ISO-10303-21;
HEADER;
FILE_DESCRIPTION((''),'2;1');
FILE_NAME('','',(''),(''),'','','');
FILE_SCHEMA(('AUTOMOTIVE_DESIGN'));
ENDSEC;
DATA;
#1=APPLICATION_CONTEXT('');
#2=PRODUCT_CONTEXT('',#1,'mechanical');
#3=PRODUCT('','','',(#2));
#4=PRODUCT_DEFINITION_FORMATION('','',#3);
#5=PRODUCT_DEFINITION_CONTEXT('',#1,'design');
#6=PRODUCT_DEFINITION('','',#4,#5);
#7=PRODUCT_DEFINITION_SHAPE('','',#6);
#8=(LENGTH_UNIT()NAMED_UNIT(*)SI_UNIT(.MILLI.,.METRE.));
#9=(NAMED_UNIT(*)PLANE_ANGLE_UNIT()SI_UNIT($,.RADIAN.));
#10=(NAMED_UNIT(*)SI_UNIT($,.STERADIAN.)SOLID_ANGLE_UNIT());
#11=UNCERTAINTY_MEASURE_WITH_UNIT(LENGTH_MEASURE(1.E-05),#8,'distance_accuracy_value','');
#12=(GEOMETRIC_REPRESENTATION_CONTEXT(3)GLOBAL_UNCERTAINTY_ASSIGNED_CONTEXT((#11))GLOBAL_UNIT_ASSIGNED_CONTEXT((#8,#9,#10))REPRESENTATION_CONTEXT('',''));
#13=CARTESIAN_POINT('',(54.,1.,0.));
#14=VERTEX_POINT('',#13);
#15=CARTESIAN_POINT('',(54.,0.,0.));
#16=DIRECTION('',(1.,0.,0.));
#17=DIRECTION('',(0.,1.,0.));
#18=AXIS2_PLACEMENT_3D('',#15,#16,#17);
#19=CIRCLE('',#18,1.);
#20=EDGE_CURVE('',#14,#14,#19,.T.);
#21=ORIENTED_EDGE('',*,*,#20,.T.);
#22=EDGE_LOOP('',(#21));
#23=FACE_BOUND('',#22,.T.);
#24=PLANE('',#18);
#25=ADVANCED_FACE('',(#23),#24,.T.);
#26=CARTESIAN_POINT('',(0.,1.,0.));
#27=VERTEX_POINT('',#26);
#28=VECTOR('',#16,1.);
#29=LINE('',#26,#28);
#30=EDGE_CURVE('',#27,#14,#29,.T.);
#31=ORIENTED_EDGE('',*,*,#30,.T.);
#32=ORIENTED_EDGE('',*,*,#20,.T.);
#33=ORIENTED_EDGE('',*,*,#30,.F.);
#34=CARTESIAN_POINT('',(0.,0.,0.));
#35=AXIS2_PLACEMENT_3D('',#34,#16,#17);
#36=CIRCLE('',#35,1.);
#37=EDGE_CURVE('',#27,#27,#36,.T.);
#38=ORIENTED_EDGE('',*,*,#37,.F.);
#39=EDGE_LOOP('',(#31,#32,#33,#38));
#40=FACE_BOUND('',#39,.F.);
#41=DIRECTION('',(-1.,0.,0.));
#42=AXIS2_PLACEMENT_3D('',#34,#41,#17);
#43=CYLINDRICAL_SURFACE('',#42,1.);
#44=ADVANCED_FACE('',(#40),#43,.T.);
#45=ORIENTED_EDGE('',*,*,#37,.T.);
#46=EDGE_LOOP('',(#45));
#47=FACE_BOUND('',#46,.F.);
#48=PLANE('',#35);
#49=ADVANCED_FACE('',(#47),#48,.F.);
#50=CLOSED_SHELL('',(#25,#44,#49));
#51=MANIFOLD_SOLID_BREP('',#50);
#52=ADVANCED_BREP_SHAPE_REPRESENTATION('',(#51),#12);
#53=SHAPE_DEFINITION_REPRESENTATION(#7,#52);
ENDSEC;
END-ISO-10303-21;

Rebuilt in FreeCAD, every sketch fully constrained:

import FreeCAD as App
import Part
import Sketcher
from FreeCAD import Vector

doc = App.newDocument("Part")
body = doc.addObject("PartDesign::Body", "Body")

# Sketch on YZ plane
sketch1 = body.newObject("Sketcher::SketchObject", "Sketch")
sketch1.AttachmentSupport = (doc.getObject("YZ_Plane"), [""])
sketch1.MapMode = "FlatFace"
sketch1.addGeometry(Part.Circle(Vector(0, 0, 0), Vector(0, 0, 1), 1), False)
sketch1.addConstraint(Sketcher.Constraint("Coincident", 0, 3, -1, 1))
sketch1.addConstraint(Sketcher.Constraint("Diameter", 0, 2.0))
pad1 = body.newObject("PartDesign::Pad", "Pad")
pad1.Profile = sketch1
pad1.Length = 54

doc.recompute()
